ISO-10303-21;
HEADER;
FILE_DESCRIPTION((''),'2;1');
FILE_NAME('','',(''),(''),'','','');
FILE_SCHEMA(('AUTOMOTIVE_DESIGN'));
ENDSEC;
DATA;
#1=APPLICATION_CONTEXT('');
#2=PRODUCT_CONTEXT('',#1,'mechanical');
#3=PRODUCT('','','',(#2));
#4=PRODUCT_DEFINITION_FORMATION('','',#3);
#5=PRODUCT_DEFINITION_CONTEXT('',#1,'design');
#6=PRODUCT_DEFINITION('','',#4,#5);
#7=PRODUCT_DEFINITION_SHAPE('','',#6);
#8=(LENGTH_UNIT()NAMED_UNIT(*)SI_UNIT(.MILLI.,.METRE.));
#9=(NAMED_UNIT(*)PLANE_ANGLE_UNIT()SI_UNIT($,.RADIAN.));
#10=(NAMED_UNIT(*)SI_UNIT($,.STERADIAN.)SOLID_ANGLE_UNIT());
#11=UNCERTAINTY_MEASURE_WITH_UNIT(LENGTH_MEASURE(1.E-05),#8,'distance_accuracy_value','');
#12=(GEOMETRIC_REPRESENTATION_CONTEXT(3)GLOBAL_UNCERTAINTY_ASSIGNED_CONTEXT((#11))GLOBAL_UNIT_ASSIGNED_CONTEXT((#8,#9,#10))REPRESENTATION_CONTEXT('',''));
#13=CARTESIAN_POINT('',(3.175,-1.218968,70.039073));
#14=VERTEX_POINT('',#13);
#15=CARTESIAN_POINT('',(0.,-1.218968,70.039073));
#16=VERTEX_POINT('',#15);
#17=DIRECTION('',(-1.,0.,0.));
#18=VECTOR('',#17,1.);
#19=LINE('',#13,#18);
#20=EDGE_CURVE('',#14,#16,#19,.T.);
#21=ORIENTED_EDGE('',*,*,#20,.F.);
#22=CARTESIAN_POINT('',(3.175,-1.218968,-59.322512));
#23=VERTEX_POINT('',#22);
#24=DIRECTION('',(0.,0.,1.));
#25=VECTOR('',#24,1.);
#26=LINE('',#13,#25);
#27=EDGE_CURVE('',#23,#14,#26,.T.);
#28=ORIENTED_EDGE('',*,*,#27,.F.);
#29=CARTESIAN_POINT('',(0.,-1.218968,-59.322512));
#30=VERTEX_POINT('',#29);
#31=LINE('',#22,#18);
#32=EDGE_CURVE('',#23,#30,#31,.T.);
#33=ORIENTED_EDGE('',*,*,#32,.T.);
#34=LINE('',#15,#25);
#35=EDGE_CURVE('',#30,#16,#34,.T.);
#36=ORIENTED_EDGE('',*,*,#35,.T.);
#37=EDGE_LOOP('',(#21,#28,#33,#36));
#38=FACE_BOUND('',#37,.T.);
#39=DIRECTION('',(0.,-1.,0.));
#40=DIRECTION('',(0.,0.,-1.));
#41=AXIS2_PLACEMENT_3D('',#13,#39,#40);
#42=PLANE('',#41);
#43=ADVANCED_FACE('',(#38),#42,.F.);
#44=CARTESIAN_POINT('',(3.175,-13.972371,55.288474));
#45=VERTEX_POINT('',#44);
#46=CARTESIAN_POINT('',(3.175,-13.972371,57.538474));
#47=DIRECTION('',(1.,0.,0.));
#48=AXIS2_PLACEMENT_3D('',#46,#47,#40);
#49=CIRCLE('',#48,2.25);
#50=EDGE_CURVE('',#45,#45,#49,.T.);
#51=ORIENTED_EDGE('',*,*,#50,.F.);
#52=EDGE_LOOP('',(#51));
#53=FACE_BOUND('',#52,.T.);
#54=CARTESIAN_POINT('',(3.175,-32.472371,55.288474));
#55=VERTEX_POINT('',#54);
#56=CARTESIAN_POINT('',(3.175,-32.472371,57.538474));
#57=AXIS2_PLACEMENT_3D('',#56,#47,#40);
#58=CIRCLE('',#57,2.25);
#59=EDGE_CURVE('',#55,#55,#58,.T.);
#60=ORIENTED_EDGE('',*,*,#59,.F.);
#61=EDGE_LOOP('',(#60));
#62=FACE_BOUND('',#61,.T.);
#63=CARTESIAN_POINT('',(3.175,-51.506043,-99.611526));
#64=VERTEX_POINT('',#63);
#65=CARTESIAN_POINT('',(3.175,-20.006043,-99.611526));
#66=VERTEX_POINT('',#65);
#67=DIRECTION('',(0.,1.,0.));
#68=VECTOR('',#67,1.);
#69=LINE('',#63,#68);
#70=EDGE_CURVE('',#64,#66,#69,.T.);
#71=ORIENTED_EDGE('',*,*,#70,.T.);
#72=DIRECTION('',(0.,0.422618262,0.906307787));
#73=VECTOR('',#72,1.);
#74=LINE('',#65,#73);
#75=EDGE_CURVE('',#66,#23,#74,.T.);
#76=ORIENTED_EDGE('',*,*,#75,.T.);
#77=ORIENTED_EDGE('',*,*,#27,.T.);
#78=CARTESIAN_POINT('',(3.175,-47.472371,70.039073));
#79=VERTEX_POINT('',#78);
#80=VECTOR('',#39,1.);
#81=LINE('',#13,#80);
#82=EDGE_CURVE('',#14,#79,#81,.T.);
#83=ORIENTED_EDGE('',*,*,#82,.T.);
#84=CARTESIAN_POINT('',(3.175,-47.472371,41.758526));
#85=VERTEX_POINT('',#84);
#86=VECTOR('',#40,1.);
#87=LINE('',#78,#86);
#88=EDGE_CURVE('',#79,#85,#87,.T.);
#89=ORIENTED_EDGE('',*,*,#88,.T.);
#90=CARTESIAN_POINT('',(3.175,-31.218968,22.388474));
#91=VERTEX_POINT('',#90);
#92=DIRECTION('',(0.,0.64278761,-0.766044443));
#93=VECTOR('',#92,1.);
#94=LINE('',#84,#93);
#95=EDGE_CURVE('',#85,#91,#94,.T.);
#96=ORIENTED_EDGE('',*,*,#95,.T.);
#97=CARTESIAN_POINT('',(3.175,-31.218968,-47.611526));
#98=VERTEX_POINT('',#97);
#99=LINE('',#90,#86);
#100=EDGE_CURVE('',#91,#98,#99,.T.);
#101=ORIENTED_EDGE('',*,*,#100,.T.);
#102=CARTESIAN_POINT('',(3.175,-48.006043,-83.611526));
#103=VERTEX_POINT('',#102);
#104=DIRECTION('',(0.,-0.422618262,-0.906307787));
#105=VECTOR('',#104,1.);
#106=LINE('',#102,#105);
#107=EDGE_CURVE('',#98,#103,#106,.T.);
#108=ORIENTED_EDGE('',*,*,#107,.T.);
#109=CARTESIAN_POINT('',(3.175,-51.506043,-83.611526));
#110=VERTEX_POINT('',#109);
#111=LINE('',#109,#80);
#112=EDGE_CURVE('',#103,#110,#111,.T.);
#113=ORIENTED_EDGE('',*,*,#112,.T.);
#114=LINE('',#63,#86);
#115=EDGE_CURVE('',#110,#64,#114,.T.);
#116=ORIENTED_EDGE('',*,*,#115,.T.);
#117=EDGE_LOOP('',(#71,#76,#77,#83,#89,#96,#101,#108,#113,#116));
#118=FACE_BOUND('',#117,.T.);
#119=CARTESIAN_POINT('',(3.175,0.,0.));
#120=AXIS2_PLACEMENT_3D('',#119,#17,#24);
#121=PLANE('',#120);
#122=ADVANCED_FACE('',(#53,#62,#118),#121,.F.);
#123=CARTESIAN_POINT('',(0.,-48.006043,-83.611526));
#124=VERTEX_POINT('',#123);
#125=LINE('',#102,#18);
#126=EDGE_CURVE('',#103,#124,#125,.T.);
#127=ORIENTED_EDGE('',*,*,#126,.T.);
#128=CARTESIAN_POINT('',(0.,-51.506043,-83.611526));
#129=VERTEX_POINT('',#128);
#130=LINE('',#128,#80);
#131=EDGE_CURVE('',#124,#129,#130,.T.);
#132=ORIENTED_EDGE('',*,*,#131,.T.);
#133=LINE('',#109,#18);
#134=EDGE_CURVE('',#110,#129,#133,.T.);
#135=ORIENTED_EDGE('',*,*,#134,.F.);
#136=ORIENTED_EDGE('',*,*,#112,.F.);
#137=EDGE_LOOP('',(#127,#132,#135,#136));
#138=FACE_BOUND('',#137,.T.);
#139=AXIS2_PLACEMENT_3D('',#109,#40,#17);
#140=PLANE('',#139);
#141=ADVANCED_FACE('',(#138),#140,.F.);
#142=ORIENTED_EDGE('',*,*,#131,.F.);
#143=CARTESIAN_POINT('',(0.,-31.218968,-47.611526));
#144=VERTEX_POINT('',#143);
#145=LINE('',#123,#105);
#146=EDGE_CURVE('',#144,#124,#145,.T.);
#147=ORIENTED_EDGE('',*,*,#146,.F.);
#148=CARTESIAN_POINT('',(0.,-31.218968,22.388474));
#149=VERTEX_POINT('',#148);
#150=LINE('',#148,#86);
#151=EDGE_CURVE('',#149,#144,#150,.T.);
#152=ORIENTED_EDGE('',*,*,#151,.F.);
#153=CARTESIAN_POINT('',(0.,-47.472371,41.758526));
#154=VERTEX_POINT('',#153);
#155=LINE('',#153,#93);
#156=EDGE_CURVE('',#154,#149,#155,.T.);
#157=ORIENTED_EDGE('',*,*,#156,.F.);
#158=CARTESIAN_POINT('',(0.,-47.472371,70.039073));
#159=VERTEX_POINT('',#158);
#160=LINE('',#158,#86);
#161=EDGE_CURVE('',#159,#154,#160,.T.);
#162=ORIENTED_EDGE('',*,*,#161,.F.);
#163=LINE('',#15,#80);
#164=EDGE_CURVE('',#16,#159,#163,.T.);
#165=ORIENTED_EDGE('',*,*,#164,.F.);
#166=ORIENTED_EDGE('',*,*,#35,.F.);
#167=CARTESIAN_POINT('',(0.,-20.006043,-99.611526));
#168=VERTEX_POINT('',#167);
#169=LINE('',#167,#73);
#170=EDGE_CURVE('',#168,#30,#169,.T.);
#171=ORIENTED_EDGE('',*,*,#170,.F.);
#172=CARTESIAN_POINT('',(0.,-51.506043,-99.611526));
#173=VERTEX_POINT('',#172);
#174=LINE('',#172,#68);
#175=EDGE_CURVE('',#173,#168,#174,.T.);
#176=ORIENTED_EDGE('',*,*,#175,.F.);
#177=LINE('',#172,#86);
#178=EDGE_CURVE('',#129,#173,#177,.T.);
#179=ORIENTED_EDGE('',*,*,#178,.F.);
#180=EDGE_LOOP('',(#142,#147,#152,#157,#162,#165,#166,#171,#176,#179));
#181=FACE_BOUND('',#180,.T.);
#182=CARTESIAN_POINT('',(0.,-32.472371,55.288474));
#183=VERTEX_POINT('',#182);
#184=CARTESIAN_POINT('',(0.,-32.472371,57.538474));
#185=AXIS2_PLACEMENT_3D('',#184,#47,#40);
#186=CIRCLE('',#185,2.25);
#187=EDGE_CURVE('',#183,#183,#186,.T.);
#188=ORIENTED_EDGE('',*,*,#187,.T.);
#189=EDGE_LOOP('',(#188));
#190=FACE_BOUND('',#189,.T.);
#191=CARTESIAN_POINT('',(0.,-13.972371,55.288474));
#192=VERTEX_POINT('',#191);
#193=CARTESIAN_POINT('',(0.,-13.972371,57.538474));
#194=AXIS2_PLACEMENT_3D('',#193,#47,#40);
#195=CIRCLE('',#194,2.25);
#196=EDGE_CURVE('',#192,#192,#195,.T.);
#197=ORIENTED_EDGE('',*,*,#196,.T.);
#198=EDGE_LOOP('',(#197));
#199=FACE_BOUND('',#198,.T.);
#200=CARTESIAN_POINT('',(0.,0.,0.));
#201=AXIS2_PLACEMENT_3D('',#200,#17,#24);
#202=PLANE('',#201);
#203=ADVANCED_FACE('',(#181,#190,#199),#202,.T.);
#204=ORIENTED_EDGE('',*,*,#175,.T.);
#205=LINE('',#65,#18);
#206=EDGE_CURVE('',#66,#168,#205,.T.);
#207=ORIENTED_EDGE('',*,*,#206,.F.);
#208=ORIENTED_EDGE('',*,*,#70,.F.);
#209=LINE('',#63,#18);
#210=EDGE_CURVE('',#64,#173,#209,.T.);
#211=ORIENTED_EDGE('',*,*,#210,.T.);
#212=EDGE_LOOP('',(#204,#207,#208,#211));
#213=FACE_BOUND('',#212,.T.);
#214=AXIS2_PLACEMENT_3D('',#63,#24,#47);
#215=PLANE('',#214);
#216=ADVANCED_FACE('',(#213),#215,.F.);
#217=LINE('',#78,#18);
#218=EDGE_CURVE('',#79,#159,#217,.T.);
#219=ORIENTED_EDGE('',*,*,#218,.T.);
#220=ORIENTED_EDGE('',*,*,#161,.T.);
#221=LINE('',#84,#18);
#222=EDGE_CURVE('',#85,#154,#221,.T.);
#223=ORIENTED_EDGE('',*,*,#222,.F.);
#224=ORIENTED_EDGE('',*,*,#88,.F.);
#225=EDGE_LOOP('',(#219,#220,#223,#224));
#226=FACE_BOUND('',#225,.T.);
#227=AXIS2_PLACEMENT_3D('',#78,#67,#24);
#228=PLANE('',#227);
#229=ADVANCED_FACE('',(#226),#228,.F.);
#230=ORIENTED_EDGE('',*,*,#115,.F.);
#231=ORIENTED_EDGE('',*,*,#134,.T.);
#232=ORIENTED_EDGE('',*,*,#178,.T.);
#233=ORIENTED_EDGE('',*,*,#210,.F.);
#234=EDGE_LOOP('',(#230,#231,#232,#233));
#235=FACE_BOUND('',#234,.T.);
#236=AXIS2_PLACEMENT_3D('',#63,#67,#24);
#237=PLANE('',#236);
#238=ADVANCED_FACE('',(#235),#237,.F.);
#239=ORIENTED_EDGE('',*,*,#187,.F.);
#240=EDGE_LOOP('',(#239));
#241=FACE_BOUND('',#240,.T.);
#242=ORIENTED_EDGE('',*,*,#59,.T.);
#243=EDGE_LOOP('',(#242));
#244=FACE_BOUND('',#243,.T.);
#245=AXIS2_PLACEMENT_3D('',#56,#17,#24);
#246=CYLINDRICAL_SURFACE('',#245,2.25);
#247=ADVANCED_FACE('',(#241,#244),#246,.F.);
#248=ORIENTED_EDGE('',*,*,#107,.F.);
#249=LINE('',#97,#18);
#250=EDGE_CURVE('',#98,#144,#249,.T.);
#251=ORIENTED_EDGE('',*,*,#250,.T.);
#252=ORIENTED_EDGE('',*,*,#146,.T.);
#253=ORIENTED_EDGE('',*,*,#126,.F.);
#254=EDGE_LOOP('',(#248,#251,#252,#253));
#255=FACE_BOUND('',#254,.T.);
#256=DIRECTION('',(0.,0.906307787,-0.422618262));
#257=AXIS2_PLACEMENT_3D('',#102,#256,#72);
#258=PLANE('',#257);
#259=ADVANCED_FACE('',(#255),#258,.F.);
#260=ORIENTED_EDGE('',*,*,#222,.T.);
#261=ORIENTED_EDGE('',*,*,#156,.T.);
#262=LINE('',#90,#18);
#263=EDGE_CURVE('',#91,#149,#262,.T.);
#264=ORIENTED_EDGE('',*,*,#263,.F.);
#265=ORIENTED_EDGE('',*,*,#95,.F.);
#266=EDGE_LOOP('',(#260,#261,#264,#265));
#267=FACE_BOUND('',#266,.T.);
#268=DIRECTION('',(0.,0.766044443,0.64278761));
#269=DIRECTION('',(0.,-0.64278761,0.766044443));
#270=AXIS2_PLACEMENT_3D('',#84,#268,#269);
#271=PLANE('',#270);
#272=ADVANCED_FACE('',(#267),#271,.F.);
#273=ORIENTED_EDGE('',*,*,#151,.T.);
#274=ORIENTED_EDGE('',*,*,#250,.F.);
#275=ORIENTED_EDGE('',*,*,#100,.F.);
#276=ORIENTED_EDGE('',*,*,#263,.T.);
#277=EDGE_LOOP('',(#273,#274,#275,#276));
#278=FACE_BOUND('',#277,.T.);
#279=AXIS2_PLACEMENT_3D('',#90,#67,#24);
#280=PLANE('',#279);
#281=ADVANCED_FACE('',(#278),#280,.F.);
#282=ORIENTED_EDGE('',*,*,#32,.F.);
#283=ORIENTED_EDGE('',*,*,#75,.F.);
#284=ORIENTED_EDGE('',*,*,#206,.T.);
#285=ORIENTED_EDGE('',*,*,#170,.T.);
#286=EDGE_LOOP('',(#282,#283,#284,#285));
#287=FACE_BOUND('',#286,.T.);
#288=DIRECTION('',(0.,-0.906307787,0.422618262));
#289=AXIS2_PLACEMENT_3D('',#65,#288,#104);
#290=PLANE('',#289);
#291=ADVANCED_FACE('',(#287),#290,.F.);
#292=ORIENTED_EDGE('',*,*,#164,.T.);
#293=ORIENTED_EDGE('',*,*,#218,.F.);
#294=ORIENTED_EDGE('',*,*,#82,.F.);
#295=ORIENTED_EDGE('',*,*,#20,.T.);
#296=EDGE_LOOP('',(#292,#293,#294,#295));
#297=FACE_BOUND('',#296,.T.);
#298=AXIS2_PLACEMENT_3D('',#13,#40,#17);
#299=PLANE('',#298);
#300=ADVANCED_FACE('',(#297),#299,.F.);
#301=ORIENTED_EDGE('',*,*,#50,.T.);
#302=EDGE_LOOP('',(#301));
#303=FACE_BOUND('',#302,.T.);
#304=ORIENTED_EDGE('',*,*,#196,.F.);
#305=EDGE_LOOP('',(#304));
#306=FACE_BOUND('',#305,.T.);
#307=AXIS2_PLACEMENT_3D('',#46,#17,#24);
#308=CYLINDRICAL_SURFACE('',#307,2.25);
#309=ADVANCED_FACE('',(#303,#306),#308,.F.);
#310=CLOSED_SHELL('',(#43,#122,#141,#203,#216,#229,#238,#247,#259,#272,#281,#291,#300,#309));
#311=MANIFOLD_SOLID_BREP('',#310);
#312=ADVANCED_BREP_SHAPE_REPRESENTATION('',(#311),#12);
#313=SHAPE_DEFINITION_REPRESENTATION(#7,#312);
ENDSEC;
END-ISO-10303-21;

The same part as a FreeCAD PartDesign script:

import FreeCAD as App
import Part
import Sketcher

V = App.Vector
Q = App.Units.Quantity

doc = App.newDocument("Part")
body = doc.addObject("PartDesign::Body", "Body")

# Sketch on YZ plane
sketch1 = body.newObject("Sketcher::SketchObject", "Sketch")
sketch1.AttachmentSupport = (doc.getObject("YZ_Plane"), [""])
sketch1.MapMode = "FlatFace"
sketch1.addGeometry(Part.LineSegment(V(-1.218968, -59.322512, 0), V(-1.218968, 70.039073, 0)), False)
sketch1.addGeometry(Part.LineSegment(V(-1.218968, 70.039073, 0), V(-47.472371, 70.039073, 0)), False)
sketch1.addGeometry(Part.LineSegment(V(-47.472371, 70.039073, 0), V(-47.472371, 41.758526, 0)), False)
sketch1.addGeometry(Part.LineSegment(V(-47.472371, 41.758526, 0), V(-31.218968, 22.388474, 0)), False)
sketch1.addGeometry(Part.LineSegment(V(-31.218968, 22.388474, 0), V(-31.218968, -47.611526, 0)), False)
sketch1.addGeometry(Part.LineSegment(V(-31.218968, -47.611526, 0), V(-48.006043, -83.611526, 0)), False)
sketch1.addGeometry(Part.LineSegment(V(-48.006043, -83.611526, 0), V(-51.506043, -83.611526, 0)), False)
sketch1.addGeometry(Part.LineSegment(V(-51.506043, -83.611526, 0), V(-51.506043, -99.611526, 0)), False)
sketch1.addGeometry(Part.LineSegment(V(-51.506043, -99.611526, 0), V(-20.006043, -99.611526, 0)), False)
sketch1.addGeometry(Part.LineSegment(V(-20.006043, -99.611526, 0), V(-1.218968, -59.322512, 0)), False)
sketch1.addGeometry(Part.Circle(V(-32.472371, 57.538474, 0), V(0, 0, 1), 2.25), False)
sketch1.addGeometry(Part.Circle(V(-13.972371, 57.538474, 0), V(0, 0, 1), 2.25), False)
sketch1.addConstraint(Sketcher.Constraint("Coincident", 0, 2, 1, 1))
sketch1.addConstraint(Sketcher.Constraint("Coincident", 1, 2, 2, 1))
sketch1.addConstraint(Sketcher.Constraint("Coincident", 2, 2, 3, 1))
sketch1.addConstraint(Sketcher.Constraint("Coincident", 3, 2, 4, 1))
sketch1.addConstraint(Sketcher.Constraint("Coincident", 4, 2, 5, 1))
sketch1.addConstraint(Sketcher.Constraint("Coincident", 5, 2, 6, 1))
sketch1.addConstraint(Sketcher.Constraint("Coincident", 6, 2, 7, 1))
sketch1.addConstraint(Sketcher.Constraint("Coincident", 7, 2, 8, 1))
sketch1.addConstraint(Sketcher.Constraint("Coincident", 8, 2, 9, 1))
sketch1.addConstraint(Sketcher.Constraint("Coincident", 9, 2, 0, 1))
sketch1.addConstraint(Sketcher.Constraint("Vertical", 0))
sketch1.addConstraint(Sketcher.Constraint("Horizontal", 1))
sketch1.addConstraint(Sketcher.Constraint("Vertical", 2))
sketch1.addConstraint(Sketcher.Constraint("Vertical", 4))
sketch1.addConstraint(Sketcher.Constraint("Horizontal", 6))
sketch1.addConstraint(Sketcher.Constraint("Vertical", 7))
sketch1.addConstraint(Sketcher.Constraint("Horizontal", 8))
sketch1.addConstraint(Sketcher.Constraint("Equal", 10, 11))
sketch1.addConstraint(Sketcher.Constraint("Parallel", 5, 9))
sketch1.addConstraint(Sketcher.Constraint("Horizontal", 10, 3, 11, 3))
sketch1.addConstraint(Sketcher.Constraint("Diameter", 10, 4.5))
sketch1.addConstraint(Sketcher.Constraint("DistanceY", 4, 2, 4, 1, 70.0))
sketch1.addConstraint(Sketcher.Constraint("DistanceY", 7, 2, 7, 1, 16.0))
sketch1.addConstraint(Sketcher.Constraint("Angle", 3, Q("-50 deg")))
sketch1.addConstraint(Sketcher.Constraint("Angle", 5, Q("-115 deg")))
sketch1.addConstraint(Sketcher.Constraint("DistanceX", 6, 2, 6, 1, 3.5))
sketch1.addConstraint(Sketcher.Constraint("DistanceX", 8, 1, 8, 2, 31.5))
sketch1.addConstraint(Sketcher.Constraint("DistanceX", 1, 2, 10, 3, 15.0))
sketch1.addConstraint(Sketcher.Constraint("DistanceX", 3, 2, 0, 2, 30.0))
sketch1.addConstraint(Sketcher.Constraint("DistanceY", 5, 2, 4, 2, 36.0))
sketch1.addConstraint(Sketcher.Constraint("DistanceX", 10, 3, 11, 3, 18.5))
sketch1.addConstraint(Sketcher.Constraint("DistanceY", 3, 2, 10, 3, 35.15))
sketch1.addConstraint(Sketcher.Constraint("DistanceY", 11, 3, 0, 2, 12.500599))
sketch1.addConstraint(Sketcher.Constraint("DistanceX", 1, 2, 1, 1, 46.253404))
sketch1.addConstraint(Sketcher.Constraint("DistanceX", 10, 3, -1, 1, 32.472371))
sketch1.addConstraint(Sketcher.Constraint("DistanceY", -1, 1, 10, 3, 57.538474))
pad1 = body.newObject("PartDesign::Pad", "Pad")
pad1.Profile = sketch1
pad1.Length = 3.175

doc.recompute()
